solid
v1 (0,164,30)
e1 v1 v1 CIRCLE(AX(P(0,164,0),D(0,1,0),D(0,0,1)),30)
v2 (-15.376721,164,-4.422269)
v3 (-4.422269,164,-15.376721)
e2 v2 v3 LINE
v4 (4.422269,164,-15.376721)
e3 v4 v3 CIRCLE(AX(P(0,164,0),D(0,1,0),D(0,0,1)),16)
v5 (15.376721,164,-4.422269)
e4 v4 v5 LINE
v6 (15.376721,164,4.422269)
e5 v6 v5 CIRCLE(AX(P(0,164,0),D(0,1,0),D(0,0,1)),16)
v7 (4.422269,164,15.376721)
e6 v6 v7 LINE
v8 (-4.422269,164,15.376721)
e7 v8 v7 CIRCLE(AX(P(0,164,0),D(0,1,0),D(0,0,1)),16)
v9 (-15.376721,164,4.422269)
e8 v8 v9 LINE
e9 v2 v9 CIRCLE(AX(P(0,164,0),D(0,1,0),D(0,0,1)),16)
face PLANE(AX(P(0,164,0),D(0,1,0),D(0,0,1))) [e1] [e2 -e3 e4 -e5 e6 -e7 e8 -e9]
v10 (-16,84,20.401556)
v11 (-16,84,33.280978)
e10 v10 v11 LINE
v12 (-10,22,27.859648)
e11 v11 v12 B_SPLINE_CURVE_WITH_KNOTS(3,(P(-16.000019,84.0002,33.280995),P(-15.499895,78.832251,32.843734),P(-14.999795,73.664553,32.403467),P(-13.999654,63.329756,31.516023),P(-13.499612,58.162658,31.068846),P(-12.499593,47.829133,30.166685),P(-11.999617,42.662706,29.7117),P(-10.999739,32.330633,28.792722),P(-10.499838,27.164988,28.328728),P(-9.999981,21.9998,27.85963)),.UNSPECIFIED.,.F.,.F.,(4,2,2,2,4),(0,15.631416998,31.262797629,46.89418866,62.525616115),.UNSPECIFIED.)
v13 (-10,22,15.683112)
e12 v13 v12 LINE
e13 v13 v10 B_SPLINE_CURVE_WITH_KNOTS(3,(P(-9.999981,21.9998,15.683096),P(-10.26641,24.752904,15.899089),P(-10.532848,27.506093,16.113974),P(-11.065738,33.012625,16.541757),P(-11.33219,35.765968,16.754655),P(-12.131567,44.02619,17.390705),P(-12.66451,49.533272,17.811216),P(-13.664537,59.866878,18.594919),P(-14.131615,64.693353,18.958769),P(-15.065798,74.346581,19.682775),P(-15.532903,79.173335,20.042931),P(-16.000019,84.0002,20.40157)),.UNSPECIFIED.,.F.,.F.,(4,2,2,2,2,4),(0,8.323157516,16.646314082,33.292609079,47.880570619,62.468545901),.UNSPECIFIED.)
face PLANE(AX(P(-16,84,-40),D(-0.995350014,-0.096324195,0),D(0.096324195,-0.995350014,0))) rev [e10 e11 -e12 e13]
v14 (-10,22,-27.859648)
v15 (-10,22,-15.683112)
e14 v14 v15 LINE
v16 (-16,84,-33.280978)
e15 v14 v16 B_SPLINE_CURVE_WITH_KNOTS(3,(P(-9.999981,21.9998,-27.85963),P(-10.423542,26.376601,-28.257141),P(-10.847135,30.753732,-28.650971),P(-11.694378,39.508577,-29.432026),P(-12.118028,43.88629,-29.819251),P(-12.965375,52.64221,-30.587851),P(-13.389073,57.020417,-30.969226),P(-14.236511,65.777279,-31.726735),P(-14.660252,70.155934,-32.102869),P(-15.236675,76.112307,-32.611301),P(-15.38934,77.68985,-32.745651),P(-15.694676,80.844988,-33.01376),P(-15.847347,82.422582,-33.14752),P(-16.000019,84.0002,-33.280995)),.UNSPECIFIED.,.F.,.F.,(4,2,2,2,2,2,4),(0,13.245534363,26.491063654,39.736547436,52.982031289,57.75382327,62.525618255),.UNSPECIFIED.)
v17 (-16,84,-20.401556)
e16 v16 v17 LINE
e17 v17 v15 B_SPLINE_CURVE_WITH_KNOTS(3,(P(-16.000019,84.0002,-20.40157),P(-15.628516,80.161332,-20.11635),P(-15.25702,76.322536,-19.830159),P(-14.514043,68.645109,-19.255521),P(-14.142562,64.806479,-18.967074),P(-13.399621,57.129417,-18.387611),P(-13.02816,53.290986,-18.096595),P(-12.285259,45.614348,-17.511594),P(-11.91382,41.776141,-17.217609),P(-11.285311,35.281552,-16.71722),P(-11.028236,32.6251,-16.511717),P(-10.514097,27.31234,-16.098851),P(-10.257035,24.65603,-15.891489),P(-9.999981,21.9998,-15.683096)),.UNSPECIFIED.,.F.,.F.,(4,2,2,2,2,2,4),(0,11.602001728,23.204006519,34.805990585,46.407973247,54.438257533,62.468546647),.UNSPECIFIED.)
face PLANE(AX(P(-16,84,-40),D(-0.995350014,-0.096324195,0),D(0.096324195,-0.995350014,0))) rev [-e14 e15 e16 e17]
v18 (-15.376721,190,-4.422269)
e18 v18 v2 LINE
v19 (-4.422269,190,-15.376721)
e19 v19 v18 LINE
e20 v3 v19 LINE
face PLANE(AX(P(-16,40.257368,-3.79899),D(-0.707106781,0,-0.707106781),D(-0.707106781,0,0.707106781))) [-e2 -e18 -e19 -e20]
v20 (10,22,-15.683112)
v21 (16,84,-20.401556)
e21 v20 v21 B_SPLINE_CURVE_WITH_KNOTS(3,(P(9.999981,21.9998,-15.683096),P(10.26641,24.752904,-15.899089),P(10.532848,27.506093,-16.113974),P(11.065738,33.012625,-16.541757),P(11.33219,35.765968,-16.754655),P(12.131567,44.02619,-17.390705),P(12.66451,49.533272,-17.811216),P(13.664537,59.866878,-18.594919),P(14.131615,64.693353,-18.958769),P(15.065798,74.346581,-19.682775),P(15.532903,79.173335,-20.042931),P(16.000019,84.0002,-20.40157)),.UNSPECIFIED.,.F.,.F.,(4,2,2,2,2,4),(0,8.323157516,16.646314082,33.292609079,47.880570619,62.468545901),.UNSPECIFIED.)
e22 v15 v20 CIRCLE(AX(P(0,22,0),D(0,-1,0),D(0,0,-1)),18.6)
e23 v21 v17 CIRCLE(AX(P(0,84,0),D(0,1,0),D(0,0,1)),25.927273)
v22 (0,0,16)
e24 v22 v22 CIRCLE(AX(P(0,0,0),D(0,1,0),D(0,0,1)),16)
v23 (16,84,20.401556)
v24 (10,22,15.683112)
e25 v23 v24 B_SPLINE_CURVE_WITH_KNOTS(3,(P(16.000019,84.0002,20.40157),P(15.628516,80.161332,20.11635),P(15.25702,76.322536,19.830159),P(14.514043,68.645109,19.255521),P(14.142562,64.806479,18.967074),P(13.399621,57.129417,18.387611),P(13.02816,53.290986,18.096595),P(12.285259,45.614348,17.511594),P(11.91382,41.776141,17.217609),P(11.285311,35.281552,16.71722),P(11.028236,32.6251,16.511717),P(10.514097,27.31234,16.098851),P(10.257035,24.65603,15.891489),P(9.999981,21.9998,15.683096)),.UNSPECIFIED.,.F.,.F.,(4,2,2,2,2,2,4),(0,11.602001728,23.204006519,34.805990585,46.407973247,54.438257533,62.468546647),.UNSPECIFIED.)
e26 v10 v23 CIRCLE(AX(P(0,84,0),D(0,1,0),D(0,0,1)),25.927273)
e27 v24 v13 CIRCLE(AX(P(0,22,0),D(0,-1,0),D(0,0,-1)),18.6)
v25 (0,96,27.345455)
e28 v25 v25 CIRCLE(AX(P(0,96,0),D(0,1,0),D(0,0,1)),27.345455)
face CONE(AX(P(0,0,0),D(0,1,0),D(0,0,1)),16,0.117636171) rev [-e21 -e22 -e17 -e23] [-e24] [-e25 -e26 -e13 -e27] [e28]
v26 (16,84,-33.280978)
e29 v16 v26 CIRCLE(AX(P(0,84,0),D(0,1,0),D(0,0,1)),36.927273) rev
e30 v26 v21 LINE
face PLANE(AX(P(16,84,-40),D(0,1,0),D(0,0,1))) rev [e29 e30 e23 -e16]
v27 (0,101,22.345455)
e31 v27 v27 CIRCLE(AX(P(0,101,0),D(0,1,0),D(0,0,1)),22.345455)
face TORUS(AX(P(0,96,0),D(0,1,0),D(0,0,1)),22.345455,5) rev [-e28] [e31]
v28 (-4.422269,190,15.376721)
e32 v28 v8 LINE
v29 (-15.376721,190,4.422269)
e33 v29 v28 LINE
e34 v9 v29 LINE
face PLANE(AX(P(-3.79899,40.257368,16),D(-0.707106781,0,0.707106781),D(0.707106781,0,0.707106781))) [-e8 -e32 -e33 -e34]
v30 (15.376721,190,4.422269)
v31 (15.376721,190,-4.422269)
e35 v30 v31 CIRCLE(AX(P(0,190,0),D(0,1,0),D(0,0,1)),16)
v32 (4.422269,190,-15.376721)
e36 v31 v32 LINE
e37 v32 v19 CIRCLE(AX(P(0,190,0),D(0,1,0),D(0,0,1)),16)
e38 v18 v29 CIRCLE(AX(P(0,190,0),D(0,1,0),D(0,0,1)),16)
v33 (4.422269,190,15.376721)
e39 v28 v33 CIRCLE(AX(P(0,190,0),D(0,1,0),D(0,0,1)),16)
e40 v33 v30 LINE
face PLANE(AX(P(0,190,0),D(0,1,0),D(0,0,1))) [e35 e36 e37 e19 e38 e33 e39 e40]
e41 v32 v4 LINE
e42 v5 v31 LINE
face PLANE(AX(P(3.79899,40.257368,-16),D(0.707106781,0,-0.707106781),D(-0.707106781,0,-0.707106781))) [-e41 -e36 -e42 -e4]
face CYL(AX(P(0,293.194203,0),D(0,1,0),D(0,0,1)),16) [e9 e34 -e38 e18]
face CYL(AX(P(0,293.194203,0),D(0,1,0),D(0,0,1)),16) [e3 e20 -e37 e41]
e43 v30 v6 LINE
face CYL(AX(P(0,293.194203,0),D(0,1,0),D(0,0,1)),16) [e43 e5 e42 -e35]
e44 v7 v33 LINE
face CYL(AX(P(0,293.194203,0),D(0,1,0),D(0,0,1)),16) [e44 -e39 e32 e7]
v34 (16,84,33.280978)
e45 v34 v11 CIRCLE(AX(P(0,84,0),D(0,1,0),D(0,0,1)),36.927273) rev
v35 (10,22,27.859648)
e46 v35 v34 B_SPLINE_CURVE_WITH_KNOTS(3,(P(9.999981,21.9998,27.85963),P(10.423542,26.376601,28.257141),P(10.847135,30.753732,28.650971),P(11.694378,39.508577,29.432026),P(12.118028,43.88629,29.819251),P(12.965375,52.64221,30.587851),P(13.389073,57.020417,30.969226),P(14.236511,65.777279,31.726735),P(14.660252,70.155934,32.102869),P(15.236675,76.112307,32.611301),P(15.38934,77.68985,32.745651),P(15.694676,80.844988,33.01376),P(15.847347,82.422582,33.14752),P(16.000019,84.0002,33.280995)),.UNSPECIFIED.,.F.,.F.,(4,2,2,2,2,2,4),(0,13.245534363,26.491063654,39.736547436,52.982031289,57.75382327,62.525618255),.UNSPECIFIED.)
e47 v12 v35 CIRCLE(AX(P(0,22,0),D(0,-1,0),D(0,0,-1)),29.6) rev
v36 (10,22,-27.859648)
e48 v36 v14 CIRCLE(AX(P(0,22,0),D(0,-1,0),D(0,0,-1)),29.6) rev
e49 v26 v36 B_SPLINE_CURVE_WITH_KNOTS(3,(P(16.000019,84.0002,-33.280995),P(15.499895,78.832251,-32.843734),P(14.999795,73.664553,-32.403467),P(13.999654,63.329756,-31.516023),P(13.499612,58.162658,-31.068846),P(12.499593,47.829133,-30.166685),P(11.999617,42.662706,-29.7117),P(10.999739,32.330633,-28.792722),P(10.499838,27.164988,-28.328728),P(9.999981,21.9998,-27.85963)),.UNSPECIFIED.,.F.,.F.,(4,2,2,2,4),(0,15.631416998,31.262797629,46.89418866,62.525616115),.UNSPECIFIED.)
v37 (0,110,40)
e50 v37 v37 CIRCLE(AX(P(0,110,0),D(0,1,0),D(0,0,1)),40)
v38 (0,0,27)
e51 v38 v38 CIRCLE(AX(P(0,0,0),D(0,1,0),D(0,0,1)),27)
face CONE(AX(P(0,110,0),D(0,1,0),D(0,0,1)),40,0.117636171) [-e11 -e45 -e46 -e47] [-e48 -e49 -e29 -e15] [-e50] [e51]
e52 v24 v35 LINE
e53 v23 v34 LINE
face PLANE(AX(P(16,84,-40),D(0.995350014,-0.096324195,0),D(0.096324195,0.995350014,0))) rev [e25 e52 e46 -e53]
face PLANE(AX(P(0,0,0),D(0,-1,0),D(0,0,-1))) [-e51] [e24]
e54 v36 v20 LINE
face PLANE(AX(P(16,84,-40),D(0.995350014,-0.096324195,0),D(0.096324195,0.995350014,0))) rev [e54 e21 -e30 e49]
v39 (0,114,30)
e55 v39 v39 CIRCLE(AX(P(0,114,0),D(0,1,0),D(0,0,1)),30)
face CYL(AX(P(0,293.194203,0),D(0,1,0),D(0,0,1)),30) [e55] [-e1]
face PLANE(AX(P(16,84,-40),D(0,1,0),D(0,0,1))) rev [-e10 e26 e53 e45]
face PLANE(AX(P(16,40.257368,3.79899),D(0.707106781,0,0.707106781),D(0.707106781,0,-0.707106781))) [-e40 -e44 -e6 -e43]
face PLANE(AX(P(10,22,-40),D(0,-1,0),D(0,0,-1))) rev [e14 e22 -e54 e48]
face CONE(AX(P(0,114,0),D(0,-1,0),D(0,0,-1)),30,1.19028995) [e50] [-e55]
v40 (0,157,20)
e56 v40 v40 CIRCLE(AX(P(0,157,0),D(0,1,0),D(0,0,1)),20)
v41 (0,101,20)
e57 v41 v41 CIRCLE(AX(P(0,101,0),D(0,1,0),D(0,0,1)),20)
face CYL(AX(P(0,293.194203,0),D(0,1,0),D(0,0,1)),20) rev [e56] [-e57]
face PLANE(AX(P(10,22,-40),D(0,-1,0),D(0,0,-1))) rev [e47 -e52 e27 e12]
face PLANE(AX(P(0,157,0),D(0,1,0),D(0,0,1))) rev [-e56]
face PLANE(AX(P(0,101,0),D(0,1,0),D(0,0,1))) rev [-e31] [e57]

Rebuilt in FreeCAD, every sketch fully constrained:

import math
import FreeCAD as App
import Part
import Sketcher

doc = App.newDocument("Part")
params = doc.addObject("Spreadsheet::Sheet", "Params")
for row, (alias, value) in enumerate([
    ("sketch1_radius", "5 mm"),
    ("sketch1_width", "11 mm"),
    ("sketch1_width2", "14 mm"),
    ("sketch1_width3", "16 mm"),
    ("sketch1_width4", "20 mm"),
    ("revolution_angle", "360 deg"),
    ("sketch2_width", "32 mm"),
    ("sketch2_width2", "20 mm"),
    ("pocket2_length", "26 mm"),
], start=1):
    params.set(f"A{row}", alias)
    params.set(f"B{row}", "=" + value)
    params.setAlias(f"B{row}", alias)

body = doc.addObject("PartDesign::Body", "Body")

sketch1 = doc.addObject("Sketcher::SketchObject", "Sketch")
body.addObject(sketch1)
sketch1.AttachmentSupport = (doc.XY_Plane, [""])
sketch1.MapMode = "FlatFace"
sketch1.addGeometry([
    Part.ArcOfCircle(Part.Circle(App.Vector(22.3, 96, 0), App.Vector(0, 0, 1), 5), math.radians(0), math.radians(90)),
    Part.LineSegment(App.Vector(27.3, 96, 0), App.Vector(16, 0, 0)),
    Part.LineSegment(App.Vector(16, 0, 0), App.Vector(27, 0, 0)),
    Part.LineSegment(App.Vector(27, 0, 0), App.Vector(40, 110, 0)),
    Part.LineSegment(App.Vector(40, 110, 0), App.Vector(30, 114, 0)),
    Part.LineSegment(App.Vector(30, 114, 0), App.Vector(30, 164, 0)),
    Part.LineSegment(App.Vector(30, 164, 0), App.Vector(16, 164, 0)),
    Part.LineSegment(App.Vector(16, 164, 0), App.Vector(16, 190, 0)),
    Part.LineSegment(App.Vector(16, 190, 0), App.Vector(0, 190, 0)),
    Part.LineSegment(App.Vector(0, 190, 0), App.Vector(0, 157, 0)),
    Part.LineSegment(App.Vector(0, 157, 0), App.Vector(20, 157, 0)),
    Part.LineSegment(App.Vector(20, 157, 0), App.Vector(20, 101, 0)),
    Part.LineSegment(App.Vector(20, 101, 0), App.Vector(22.3, 101, 0)),
], False)
sketch1.addConstraint([
    Sketcher.Constraint("Coincident", 0, 1, 1, 1),
    Sketcher.Constraint("Coincident", 1, 2, 2, 1),
    Sketcher.Constraint("Coincident", 2, 2, 3, 1),
    Sketcher.Constraint("Coincident", 3, 2, 4, 1),
    Sketcher.Constraint("Coincident", 4, 2, 5, 1),
    Sketcher.Constraint("Coincident", 5, 2, 6, 1),
    Sketcher.Constraint("Coincident", 6, 2, 7, 1),
    Sketcher.Constraint("Coincident", 7, 2, 8, 1),
    Sketcher.Constraint("Coincident", 8, 2, 9, 1),
    Sketcher.Constraint("Coincident", 9, 2, 10, 1),
    Sketcher.Constraint("Coincident", 10, 2, 11, 1),
    Sketcher.Constraint("Coincident", 11, 2, 12, 1),
    Sketcher.Constraint("Tangent", 12, 2, 0, 2),
    Sketcher.Constraint("Horizontal", 2),
    Sketcher.Constraint("Vertical", 5),
    Sketcher.Constraint("Horizontal", 6),
    Sketcher.Constraint("Vertical", 7),
    Sketcher.Constraint("Horizontal", 8),
    Sketcher.Constraint("Vertical", 9),
    Sketcher.Constraint("Horizontal", 10),
    Sketcher.Constraint("Vertical", 11),
    Sketcher.Constraint("Horizontal", 12),
    Sketcher.Constraint("PointOnObject", 1, 2, -1),
    Sketcher.Constraint("PointOnObject", 8, 2, -2),
    Sketcher.Constraint("Parallel", 1, 3),
    Sketcher.Constraint("Vertical", 1, 2, 6, 2),
    Sketcher.Constraint("Radius", 0, 5.0),
    Sketcher.Constraint("DistanceX", 2, 1, 2, 2, 11.0),
    Sketcher.Constraint("DistanceX", 6, 2, 6, 1, 14.0),
    Sketcher.Constraint("DistanceX", 8, 2, 8, 1, 16.0),
    Sketcher.Constraint("DistanceX", 10, 1, 10, 2, 20.0),
    Sketcher.Constraint("DistanceY", 5, 1, 5, 2, 50.0),
    Sketcher.Constraint("DistanceY", 7, 1, 7, 2, 26.0),
    Sketcher.Constraint("DistanceY", 9, 2, 9, 1, 33.0),
    Sketcher.Constraint("DistanceY", 11, 2, 11, 1, 56.0),
    Sketcher.Constraint("DistanceY", -1, 1, 0, 3, 96.0),
    Sketcher.Constraint("DistanceY", -1, 1, 0, 1, 96.0),
    Sketcher.Constraint("DistanceX", -1, 1, 3, 2, 40.0),
    Sketcher.Constraint("DistanceY", -1, 1, 3, 2, 110.0),
])
sketch1.setExpression("Constraints[26]", "Params.sketch1_radius")
sketch1.setExpression("Constraints[27]", "Params.sketch1_width")
sketch1.setExpression("Constraints[28]", "Params.sketch1_width2")
sketch1.setExpression("Constraints[29]", "Params.sketch1_width3")
sketch1.setExpression("Constraints[30]", "Params.sketch1_width4")
revolution = doc.addObject("PartDesign::Revolution", "Revolution")
body.addObject(revolution)
revolution.Profile = sketch1
revolution.ReferenceAxis = (sketch1, ["V_Axis"])
revolution.setExpression("Angle", "Params.revolution_angle")

sketch2 = doc.addObject("Sketcher::SketchObject", "Sketch001")
body.addObject(sketch2)
sketch2.AttachmentSupport = (doc.XY_Plane, [""])
sketch2.MapMode = "FlatFace"
sketch2.addGeometry([
    Part.LineSegment(App.Vector(16, 84, 0), App.Vector(-16, 84, 0)),
    Part.LineSegment(App.Vector(-16, 84, 0), App.Vector(-10, 22, 0)),
    Part.LineSegment(App.Vector(-10, 22, 0), App.Vector(10, 22, 0)),
    Part.LineSegment(App.Vector(10, 22, 0), App.Vector(16, 84, 0)),
], False)
sketch2.addConstraint([
    Sketcher.Constraint("Coincident", 0, 2, 1, 1),
    Sketcher.Constraint("Coincident", 1, 2, 2, 1),
    Sketcher.Constraint("Coincident", 2, 2, 3, 1),
    Sketcher.Constraint("Coincident", 3, 2, 0, 1),
    Sketcher.Constraint("Horizontal", 0),
    Sketcher.Constraint("Horizontal", 2),
    Sketcher.Constraint("Equal", 1, 3),
    Sketcher.Constraint("DistanceX", 0, 2, 0, 1, 32.0),
    Sketcher.Constraint("DistanceX", 2, 1, 2, 2, 20.0),
    Sketcher.Constraint("DistanceX", 0, 2, -1, 1, 16.0),
    Sketcher.Constraint("DistanceY", -1, 1, 0, 2, 84.0),
    Sketcher.Constraint("DistanceY", -1, 1, 1, 2, 22.0),
])
sketch2.setExpression("Constraints[7]", "Params.sketch2_width")
sketch2.setExpression("Constraints[8]", "Params.sketch2_width2")
pocket1 = doc.addObject("PartDesign::Pocket", "Pocket")
body.addObject(pocket1)
pocket1.Profile = sketch2
pocket1.Type = "ThroughAll"
pocket1.Midplane = True

sketch3 = doc.addObject("Sketcher::SketchObject", "Sketch002")
body.addObject(sketch3)
sketch3.AttachmentSupport = (doc.XZ_Plane, [""])
sketch3.MapMode = "FlatFace"
sketch3.AttachmentOffset = App.Placement(App.Vector(0, 0, -190), App.Rotation())
sketch3.addGeometry([
    Part.LineSegment(App.Vector(-63, -63, 0), App.Vector(-63, 63, 0)),
    Part.LineSegment(App.Vector(-63, 63, 0), App.Vector(63, 63, 0)),
    Part.LineSegment(App.Vector(63, 63, 0), App.Vector(63, -63, 0)),
    Part.LineSegment(App.Vector(63, -63, 0), App.Vector(-63, -63, 0)),
    Part.LineSegment(App.Vector(-4, -16, 0), App.Vector(4, -16, 0)),
    Part.LineSegment(App.Vector(4, -16, 0), App.Vector(16, -4, 0)),
    Part.LineSegment(App.Vector(16, -4, 0), App.Vector(16, 4, 0)),
    Part.LineSegment(App.Vector(16, 4, 0), App.Vector(4, 16, 0)),
    Part.LineSegment(App.Vector(4, 16, 0), App.Vector(-4, 16, 0)),
    Part.LineSegment(App.Vector(-4, 16, 0), App.Vector(-16, 4, 0)),
    Part.LineSegment(App.Vector(-16, 4, 0), App.Vector(-16, -4, 0)),
    Part.LineSegment(App.Vector(-16, -4, 0), App.Vector(-4, -16, 0)),
], False)
sketch3.addConstraint([
    Sketcher.Constraint("Coincident", 0, 2, 1, 1),
    Sketcher.Constraint("Coincident", 1, 2, 2, 1),
    Sketcher.Constraint("Coincident", 2, 2, 3, 1),
    Sketcher.Constraint("Coincident", 3, 2, 0, 1),
    Sketcher.Constraint("Coincident", 4, 2, 5, 1),
    Sketcher.Constraint("Coincident", 5, 2, 6, 1),
    Sketcher.Constraint("Coincident", 6, 2, 7, 1),
    Sketcher.Constraint("Coincident", 7, 2, 8, 1),
    Sketcher.Constraint("Coincident", 8, 2, 9, 1),
    Sketcher.Constraint("Coincident", 9, 2, 10, 1),
    Sketcher.Constraint("Coincident", 10, 2, 11, 1),
    Sketcher.Constraint("Coincident", 11, 2, 4, 1),
    Sketcher.Constraint("Vertical", 0),
    Sketcher.Constraint("Horizontal", 1),
    Sketcher.Constraint("Vertical", 2),
    Sketcher.Constraint("Horizontal", 3),
    Sketcher.Constraint("Horizontal", 4),
    Sketcher.Constraint("Vertical", 6),
    Sketcher.Constraint("Horizontal", 8),
    Sketcher.Constraint("Vertical", 10),
    Sketcher.Constraint("Symmetric", 0, 2, 2, 2, -1, 1),
    Sketcher.Constraint("Symmetric", 4, 2, 8, 2, -1, 1),
    Sketcher.Constraint("Symmetric", 5, 2, 9, 2, -1, 1),
    Sketcher.Constraint("Perpendicular", 5, 7),
    Sketcher.Constraint("Perpendicular", 9, 11),
    Sketcher.Constraint("Horizontal", 6, 2, 9, 2),
    Sketcher.Constraint("Horizontal", 5, 2, 10, 2),
    Sketcher.Constraint("Vertical", 4, 2, 7, 2),
    Sketcher.Constraint("Equal", 3, 0),
    Sketcher.Constraint("Equal", 8, 6),
    Sketcher.Constraint("DistanceY", 4, 2, -1, 1, 16.0),
    Sketcher.Constraint("DistanceX", 1, 1, 1, 2, 126.226),
    Sketcher.Constraint("DistanceX", 4, 1, 4, 2, 7.59798),
])
pocket2 = doc.addObject("PartDesign::Pocket", "Pocket001")
body.addObject(pocket2)
pocket2.Profile = sketch3
pocket2.setExpression("Length", "Params.pocket2_length")
pocket2.Reversed = True

doc.recompute()
